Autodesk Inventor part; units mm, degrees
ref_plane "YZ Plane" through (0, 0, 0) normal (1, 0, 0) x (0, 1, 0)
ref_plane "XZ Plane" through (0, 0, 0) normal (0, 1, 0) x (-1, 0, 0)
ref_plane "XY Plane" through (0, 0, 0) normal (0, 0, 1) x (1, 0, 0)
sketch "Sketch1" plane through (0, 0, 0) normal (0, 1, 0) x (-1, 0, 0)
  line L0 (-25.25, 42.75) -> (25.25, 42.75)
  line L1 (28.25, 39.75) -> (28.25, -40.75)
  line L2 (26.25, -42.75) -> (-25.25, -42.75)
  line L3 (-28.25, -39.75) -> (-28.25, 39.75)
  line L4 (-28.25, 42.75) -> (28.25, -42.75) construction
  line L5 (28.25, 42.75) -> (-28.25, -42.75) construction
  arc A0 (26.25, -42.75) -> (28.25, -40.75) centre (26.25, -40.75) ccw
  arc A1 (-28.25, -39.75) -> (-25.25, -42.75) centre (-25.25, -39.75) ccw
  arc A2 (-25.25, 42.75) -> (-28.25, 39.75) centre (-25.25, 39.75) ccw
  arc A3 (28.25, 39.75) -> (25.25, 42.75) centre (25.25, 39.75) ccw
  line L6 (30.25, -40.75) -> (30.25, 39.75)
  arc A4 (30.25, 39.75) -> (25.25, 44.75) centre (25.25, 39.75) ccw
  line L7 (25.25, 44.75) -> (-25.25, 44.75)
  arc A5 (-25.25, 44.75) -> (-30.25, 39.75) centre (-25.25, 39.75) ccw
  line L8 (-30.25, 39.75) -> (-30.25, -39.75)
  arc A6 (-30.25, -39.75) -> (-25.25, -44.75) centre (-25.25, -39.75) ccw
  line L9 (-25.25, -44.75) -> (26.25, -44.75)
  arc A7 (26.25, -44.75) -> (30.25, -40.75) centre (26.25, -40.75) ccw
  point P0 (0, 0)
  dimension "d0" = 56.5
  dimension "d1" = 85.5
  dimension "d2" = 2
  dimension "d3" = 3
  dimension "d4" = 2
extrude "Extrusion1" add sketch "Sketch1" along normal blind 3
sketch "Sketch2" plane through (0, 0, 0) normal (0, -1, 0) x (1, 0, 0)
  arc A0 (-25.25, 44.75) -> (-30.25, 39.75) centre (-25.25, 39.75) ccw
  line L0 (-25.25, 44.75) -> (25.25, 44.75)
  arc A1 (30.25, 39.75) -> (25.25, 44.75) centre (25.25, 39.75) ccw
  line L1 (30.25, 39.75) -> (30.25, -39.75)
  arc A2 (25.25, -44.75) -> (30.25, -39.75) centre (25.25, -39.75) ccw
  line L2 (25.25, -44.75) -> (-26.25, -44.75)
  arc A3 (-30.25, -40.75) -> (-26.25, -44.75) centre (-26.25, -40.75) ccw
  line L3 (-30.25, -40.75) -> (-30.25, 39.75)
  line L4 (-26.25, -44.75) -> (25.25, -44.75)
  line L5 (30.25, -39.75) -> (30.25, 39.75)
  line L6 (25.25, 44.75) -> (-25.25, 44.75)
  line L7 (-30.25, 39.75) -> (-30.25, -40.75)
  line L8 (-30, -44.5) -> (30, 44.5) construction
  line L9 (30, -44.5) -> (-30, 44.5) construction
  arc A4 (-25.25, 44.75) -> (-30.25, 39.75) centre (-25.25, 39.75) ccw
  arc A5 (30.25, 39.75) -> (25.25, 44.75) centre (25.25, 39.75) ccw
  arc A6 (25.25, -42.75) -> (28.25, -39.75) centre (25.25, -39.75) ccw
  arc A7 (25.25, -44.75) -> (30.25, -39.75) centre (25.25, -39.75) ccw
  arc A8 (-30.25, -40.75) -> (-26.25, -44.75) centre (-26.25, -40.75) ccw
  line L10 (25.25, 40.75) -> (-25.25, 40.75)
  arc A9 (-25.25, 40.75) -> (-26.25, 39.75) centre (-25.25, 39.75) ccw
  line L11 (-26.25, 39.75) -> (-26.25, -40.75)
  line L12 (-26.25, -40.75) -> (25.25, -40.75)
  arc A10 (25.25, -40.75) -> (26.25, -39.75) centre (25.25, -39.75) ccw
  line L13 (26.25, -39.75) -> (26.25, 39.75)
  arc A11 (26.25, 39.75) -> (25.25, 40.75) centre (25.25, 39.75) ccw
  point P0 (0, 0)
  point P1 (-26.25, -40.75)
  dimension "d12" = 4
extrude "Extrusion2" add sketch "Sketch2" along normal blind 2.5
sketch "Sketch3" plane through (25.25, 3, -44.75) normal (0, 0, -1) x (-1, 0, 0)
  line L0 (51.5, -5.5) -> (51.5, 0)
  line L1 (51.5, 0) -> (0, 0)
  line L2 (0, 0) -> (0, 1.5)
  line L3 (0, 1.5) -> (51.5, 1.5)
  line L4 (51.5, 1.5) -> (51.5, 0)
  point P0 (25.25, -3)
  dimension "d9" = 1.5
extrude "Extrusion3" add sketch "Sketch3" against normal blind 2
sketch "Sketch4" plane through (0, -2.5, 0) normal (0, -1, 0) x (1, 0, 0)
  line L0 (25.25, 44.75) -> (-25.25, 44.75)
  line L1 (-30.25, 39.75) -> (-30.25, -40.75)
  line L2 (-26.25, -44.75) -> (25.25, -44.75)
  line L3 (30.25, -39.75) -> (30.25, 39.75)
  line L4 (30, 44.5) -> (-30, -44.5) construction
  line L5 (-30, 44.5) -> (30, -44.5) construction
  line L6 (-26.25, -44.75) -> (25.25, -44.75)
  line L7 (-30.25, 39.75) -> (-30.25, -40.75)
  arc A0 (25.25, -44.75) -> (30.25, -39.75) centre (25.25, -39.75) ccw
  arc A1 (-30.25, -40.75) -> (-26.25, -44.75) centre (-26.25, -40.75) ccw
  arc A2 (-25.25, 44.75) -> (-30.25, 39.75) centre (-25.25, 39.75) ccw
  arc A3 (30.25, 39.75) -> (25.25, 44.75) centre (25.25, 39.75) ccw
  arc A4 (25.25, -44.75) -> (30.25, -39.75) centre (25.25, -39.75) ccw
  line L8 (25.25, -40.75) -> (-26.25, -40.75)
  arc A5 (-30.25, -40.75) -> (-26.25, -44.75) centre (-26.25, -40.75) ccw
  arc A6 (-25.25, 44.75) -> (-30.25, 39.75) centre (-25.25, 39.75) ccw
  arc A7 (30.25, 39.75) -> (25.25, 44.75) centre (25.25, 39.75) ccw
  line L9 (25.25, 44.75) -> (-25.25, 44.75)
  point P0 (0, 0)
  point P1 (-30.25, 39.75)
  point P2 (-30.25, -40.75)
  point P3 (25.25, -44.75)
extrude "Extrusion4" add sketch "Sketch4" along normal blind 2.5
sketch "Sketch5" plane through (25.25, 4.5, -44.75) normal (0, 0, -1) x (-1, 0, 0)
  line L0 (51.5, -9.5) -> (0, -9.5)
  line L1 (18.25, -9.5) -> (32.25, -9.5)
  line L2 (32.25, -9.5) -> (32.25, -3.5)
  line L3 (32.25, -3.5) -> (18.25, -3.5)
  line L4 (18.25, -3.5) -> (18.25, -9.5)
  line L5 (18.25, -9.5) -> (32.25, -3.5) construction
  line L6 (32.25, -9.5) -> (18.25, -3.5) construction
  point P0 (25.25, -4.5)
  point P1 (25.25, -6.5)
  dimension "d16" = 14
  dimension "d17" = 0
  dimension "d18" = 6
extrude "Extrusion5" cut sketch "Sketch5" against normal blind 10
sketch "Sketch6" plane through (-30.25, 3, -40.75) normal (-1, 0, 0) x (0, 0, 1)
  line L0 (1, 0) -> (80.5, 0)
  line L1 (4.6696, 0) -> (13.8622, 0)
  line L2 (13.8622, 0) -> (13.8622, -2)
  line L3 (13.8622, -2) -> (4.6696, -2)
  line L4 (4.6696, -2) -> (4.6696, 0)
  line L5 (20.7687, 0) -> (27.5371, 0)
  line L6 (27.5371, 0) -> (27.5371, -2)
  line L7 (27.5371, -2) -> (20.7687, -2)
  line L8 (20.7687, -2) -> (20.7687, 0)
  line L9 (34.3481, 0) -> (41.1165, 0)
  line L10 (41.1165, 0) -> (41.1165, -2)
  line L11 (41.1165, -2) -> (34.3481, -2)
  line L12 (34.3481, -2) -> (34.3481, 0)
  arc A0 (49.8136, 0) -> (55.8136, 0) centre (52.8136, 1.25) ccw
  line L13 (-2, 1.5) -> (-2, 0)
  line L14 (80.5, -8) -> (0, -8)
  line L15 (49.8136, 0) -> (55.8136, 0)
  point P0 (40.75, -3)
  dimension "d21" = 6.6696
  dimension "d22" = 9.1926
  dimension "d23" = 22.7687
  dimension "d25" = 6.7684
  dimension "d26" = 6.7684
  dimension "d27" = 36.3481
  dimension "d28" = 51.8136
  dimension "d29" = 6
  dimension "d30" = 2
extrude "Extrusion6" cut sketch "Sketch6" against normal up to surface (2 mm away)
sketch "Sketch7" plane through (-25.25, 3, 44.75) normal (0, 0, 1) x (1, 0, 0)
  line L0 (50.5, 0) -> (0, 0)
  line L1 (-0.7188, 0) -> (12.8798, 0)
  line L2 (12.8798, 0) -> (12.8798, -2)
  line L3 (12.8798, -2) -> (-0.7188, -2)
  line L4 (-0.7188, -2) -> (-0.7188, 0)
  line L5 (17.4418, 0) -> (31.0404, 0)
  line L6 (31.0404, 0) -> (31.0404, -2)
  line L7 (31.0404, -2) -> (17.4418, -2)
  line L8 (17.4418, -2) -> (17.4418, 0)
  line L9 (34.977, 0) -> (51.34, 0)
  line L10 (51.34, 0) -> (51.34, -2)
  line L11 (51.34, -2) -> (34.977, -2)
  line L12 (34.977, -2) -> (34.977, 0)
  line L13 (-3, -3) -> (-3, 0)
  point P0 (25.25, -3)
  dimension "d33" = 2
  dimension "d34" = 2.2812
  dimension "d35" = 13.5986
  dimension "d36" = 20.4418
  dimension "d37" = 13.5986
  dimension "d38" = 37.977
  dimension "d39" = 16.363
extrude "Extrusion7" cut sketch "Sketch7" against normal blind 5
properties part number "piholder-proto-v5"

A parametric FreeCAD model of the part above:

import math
import FreeCAD as App
import Part
import Sketcher

V = App.Vector


def add_polygon(sketch, points):
    """Adds a closed chain of lines whose ends are joined by coincident constraints."""
    first, n = sketch.GeometryCount, len(points)
    for a, b in zip(points, points[1:] + points[:1]):
        sketch.addGeometry(Part.LineSegment(App.Vector(*a, 0), App.Vector(*b, 0)), False)
    for i in range(n):
        sketch.addConstraint(Sketcher.Constraint("Coincident", first + i, 2, first + (i + 1) % n, 1))

doc = App.newDocument("Part")
body = doc.addObject("PartDesign::Body", "Body")

# Sketch on XZ plane
sketch1 = body.newObject("Sketcher::SketchObject", "Sketch")
sketch1.AttachmentSupport = (doc.getObject("XZ_Plane"), [""])
sketch1.MapMode = "FlatFace"
sketch1.addGeometry(Part.ArcOfCircle(Part.Circle(V(-26.2, -40.8, 0), V(0, 0, 1), 4), math.radians(180), math.radians(270)), False)
sketch1.addGeometry(Part.LineSegment(V(-30.2, -40.8, 0), V(-30.2, 39.8, 0)), False)
sketch1.addGeometry(Part.ArcOfCircle(Part.Circle(V(-25.2, 39.8, 0), V(0, 0, 1), 5), math.radians(90), math.radians(180)), False)
sketch1.addGeometry(Part.LineSegment(V(-25.2, 44.8, 0), V(25.2, 44.8, 0)), False)
sketch1.addGeometry(Part.ArcOfCircle(Part.Circle(V(25.2, 39.8, 0), V(0, 0, 1), 5), math.radians(0), math.radians(90)), False)
sketch1.addGeometry(Part.LineSegment(V(30.2, 39.8, 0), V(30.2, -39.8, 0)), False)
sketch1.addGeometry(Part.ArcOfCircle(Part.Circle(V(25.2, -39.8, 0), V(0, 0, 1), 5), math.radians(-90), math.radians(0)), False)
sketch1.addGeometry(Part.LineSegment(V(25.2, -44.8, 0), V(-26.2, -44.8, 0)), False)
sketch1.addGeometry(Part.ArcOfCircle(Part.Circle(V(25.2, 39.8, 0), V(0, 0, 1), 3), math.radians(0), math.radians(90)), False)
sketch1.addGeometry(Part.LineSegment(V(25.2, 42.8, 0), V(-25.2, 42.8, 0)), False)
sketch1.addGeometry(Part.ArcOfCircle(Part.Circle(V(-25.2, 39.8, 0), V(0, 0, 1), 3), math.radians(90), math.radians(180)), False)
sketch1.addGeometry(Part.LineSegment(V(-28.2, 39.8, 0), V(-28.2, -40.8, 0)), False)
sketch1.addGeometry(Part.ArcOfCircle(Part.Circle(V(-26.2, -40.8, 0), V(0, 0, 1), 2), math.radians(180), math.radians(270)), False)
sketch1.addGeometry(Part.LineSegment(V(-26.2, -42.8, 0), V(25.2, -42.8, 0)), False)
sketch1.addGeometry(Part.ArcOfCircle(Part.Circle(V(25.2, -39.8, 0), V(0, 0, 1), 3), math.radians(-90), math.radians(0)), False)
sketch1.addGeometry(Part.LineSegment(V(28.2, -39.8, 0), V(28.2, 39.8, 0)), False)
sketch1.addConstraint(Sketcher.Constraint("Tangent", 0, 1, 1, 1))
sketch1.addConstraint(Sketcher.Constraint("Tangent", 1, 2, 2, 2))
sketch1.addConstraint(Sketcher.Constraint("Tangent", 2, 1, 3, 1))
sketch1.addConstraint(Sketcher.Constraint("Tangent", 3, 2, 4, 2))
sketch1.addConstraint(Sketcher.Constraint("Tangent", 4, 1, 5, 1))
sketch1.addConstraint(Sketcher.Constraint("Tangent", 5, 2, 6, 2))
sketch1.addConstraint(Sketcher.Constraint("Tangent", 6, 1, 7, 1))
sketch1.addConstraint(Sketcher.Constraint("Tangent", 7, 2, 0, 2))
sketch1.addConstraint(Sketcher.Constraint("Tangent", 8, 2, 9, 1))
sketch1.addConstraint(Sketcher.Constraint("Tangent", 9, 2, 10, 1))
sketch1.addConstraint(Sketcher.Constraint("Tangent", 10, 2, 11, 1))
sketch1.addConstraint(Sketcher.Constraint("Tangent", 11, 2, 12, 1))
sketch1.addConstraint(Sketcher.Constraint("Tangent", 12, 2, 13, 1))
sketch1.addConstraint(Sketcher.Constraint("Tangent", 13, 2, 14, 1))
sketch1.addConstraint(Sketcher.Constraint("Tangent", 14, 2, 15, 1))
sketch1.addConstraint(Sketcher.Constraint("Tangent", 15, 2, 8, 1))
sketch1.addConstraint(Sketcher.Constraint("Vertical", 1))
sketch1.addConstraint(Sketcher.Constraint("Horizontal", 3))
sketch1.addConstraint(Sketcher.Constraint("Vertical", 5))
sketch1.addConstraint(Sketcher.Constraint("Horizontal", 7))
sketch1.addConstraint(Sketcher.Constraint("Horizontal", 9))
sketch1.addConstraint(Sketcher.Constraint("Vertical", 11))
sketch1.addConstraint(Sketcher.Constraint("Horizontal", 13))
sketch1.addConstraint(Sketcher.Constraint("Vertical", 15))
sketch1.addConstraint(Sketcher.Constraint("Coincident", 8, 3, 4, 3))
sketch1.addConstraint(Sketcher.Constraint("Coincident", 10, 3, 2, 3))
sketch1.addConstraint(Sketcher.Constraint("Coincident", 12, 3, 0, 3))
sketch1.addConstraint(Sketcher.Constraint("Equal", 2, 4))
sketch1.addConstraint(Sketcher.Constraint("Equal", 4, 6))
sketch1.addConstraint(Sketcher.Constraint("Equal", 10, 14))
sketch1.addConstraint(Sketcher.Constraint("Symmetric", 2, 3, 6, 3, -1, 1))
sketch1.addConstraint(Sketcher.Constraint("Radius", 8, 3.0))
sketch1.addConstraint(Sketcher.Constraint("Radius", 12, 2.0))
sketch1.addConstraint(Sketcher.Constraint("Radius", 0, 4.0))
sketch1.addConstraint(Sketcher.Constraint("DistanceX", 0, 3, 5, 2, 56.5))
sketch1.addConstraint(Sketcher.Constraint("DistanceY", 1, 1, 1, 2, 80.5))
pad1 = body.newObject("PartDesign::Pad", "Pad")
pad1.Profile = sketch1
pad1.Length = 3
pad1.Reversed = True

# Sketch on XZ plane
sketch2 = body.newObject("Sketcher::SketchObject", "Sketch001")
sketch2.AttachmentSupport = (doc.getObject("XZ_Plane"), [""])
sketch2.MapMode = "FlatFace"
sketch2.addGeometry(Part.LineSegment(V(25.2, 44.8, 0), V(-25.2, 44.8, 0)), False)
sketch2.addGeometry(Part.ArcOfCircle(Part.Circle(V(-25.2, 39.8, 0), V(0, 0, 1), 5), math.radians(90), math.radians(180)), False)
sketch2.addGeometry(Part.LineSegment(V(-30.2, 39.8, 0), V(-30.2, -40.8, 0)), False)
sketch2.addGeometry(Part.ArcOfCircle(Part.Circle(V(-26.2, -40.8, 0), V(0, 0, 1), 4), math.radians(180), math.radians(270)), False)
sketch2.addGeometry(Part.LineSegment(V(-26.2, -44.8, 0), V(25.2, -44.8, 0)), False)
sketch2.addGeometry(Part.ArcOfCircle(Part.Circle(V(25.2, -39.8, 0), V(0, 0, 1), 5), math.radians(-90), math.radians(0)), False)
sketch2.addGeometry(Part.LineSegment(V(30.2, -39.8, 0), V(30.2, 39.8, 0)), False)
sketch2.addGeometry(Part.ArcOfCircle(Part.Circle(V(25.2, 39.8, 0), V(0, 0, 1), 5), math.radians(0), math.radians(90)), False)
sketch2.addGeometry(Part.LineSegment(V(-25.2, 40.8, 0), V(25.2, 40.8, 0)), False)
sketch2.addGeometry(Part.ArcOfCircle(Part.Circle(V(25.2, 39.8, 0), V(0, 0, 1), 1), math.radians(0), math.radians(90)), False)
sketch2.addGeometry(Part.LineSegment(V(26.2, 39.8, 0), V(26.2, -39.8, 0)), False)
sketch2.addGeometry(Part.ArcOfCircle(Part.Circle(V(25.2, -39.8, 0), V(0, 0, 1), 1), math.radians(-90), math.radians(0)), False)
sketch2.addGeometry(Part.LineSegment(V(25.2, -40.8, 0), V(-26.2, -40.8, 0)), False)
sketch2.addGeometry(Part.LineSegment(V(-26.2, -40.8, 0), V(-26.2, 39.8, 0)), False)
sketch2.addGeometry(Part.ArcOfCircle(Part.Circle(V(-25.2, 39.8, 0), V(0, 0, 1), 1), math.radians(90), math.radians(180)), False)
sketch2.addConstraint(Sketcher.Constraint("Tangent", 0, 2, 1, 1))
sketch2.addConstraint(Sketcher.Constraint("Tangent", 1, 2, 2, 1))
sketch2.addConstraint(Sketcher.Constraint("Tangent", 2, 2, 3, 1))
sketch2.addConstraint(Sketcher.Constraint("Tangent", 3, 2, 4, 1))
sketch2.addConstraint(Sketcher.Constraint("Tangent", 4, 2, 5, 1))
sketch2.addConstraint(Sketcher.Constraint("Tangent", 5, 2, 6, 1))
sketch2.addConstraint(Sketcher.Constraint("Tangent", 6, 2, 7, 1))
sketch2.addConstraint(Sketcher.Constraint("Tangent", 7, 2, 0, 1))
sketch2.addConstraint(Sketcher.Constraint("Tangent", 8, 2, 9, 2))
sketch2.addConstraint(Sketcher.Constraint("Tangent", 9, 1, 10, 1))
sketch2.addConstraint(Sketcher.Constraint("Tangent", 10, 2, 11, 2))
sketch2.addConstraint(Sketcher.Constraint("Tangent", 11, 1, 12, 1))
sketch2.addConstraint(Sketcher.Constraint("Coincident", 12, 2, 13, 1))
sketch2.addConstraint(Sketcher.Constraint("Tangent", 13, 2, 14, 2))
sketch2.addConstraint(Sketcher.Constraint("Tangent", 14, 1, 8, 1))
sketch2.addConstraint(Sketcher.Constraint("Horizontal", 0))
sketch2.addConstraint(Sketcher.Constraint("Vertical", 2))
sketch2.addConstraint(Sketcher.Constraint("Horizontal", 4))
sketch2.addConstraint(Sketcher.Constraint("Vertical", 6))
sketch2.addConstraint(Sketcher.Constraint("Horizontal", 8))
sketch2.addConstraint(Sketcher.Constraint("Vertical", 10))
sketch2.addConstraint(Sketcher.Constraint("Horizontal", 12))
sketch2.addConstraint(Sketcher.Constraint("Vertical", 13))
sketch2.addConstraint(Sketcher.Constraint("Coincident", 9, 3, 7, 3))
sketch2.addConstraint(Sketcher.Constraint("Coincident", 11, 3, 5, 3))
sketch2.addConstraint(Sketcher.Constraint("Coincident", 14, 3, 1, 3))
sketch2.addConstraint(Sketcher.Constraint("Equal", 1, 5))
sketch2.addConstraint(Sketcher.Constraint("Equal", 5, 7))
sketch2.addConstraint(Sketcher.Constraint("Symmetric", 1, 3, 5, 3, -1, 1))
sketch2.addConstraint(Sketcher.Constraint("Horizontal", 2, 2, 11, 1))
sketch2.addConstraint(Sketcher.Constraint("Radius", 3, 4.0))
sketch2.addConstraint(Sketcher.Constraint("Radius", 1, 5.0))
sketch2.addConstraint(Sketcher.Constraint("DistanceX", 0, 2, 0, 1, 50.5))
sketch2.addConstraint(Sketcher.Constraint("DistanceY", 2, 2, 2, 1, 80.5))
pad2 = body.newObject("PartDesign::Pad", "Pad001")
pad2.Profile = sketch2
pad2.Length = 2.5

# Sketch on XY plane
sketch3 = body.newObject("Sketcher::SketchObject", "Sketch002")
sketch3.AttachmentSupport = (doc.getObject("XY_Plane"), [""])
sketch3.MapMode = "FlatFace"
sketch3.AttachmentOffset = App.Placement(V(0, 0, -44.75), App.Rotation())
add_polygon(sketch3, [(25.2, 3), (-26.2, 3), (-26.2, 4.5), (25.2, 4.5)])  # lines 0-3
sketch3.addConstraint(Sketcher.Constraint("Horizontal", 0))
sketch3.addConstraint(Sketcher.Constraint("Vertical", 1))
sketch3.addConstraint(Sketcher.Constraint("Horizontal", 2))
sketch3.addConstraint(Sketcher.Constraint("Vertical", 3))
sketch3.addConstraint(Sketcher.Constraint("DistanceY", 1, 1, 1, 2, 1.5))
sketch3.addConstraint(Sketcher.Constraint("DistanceX", 0, 2, 0, 1, 51.5))
sketch3.addConstraint(Sketcher.Constraint("DistanceY", -1, 1, 0, 2, 3.0))
sketch3.addConstraint(Sketcher.Constraint("DistanceX", 0, 2, -1, 1, 26.25))
pad3 = body.newObject("PartDesign::Pad", "Pad002")
pad3.Profile = sketch3
pad3.Length = 2

# Sketch on XZ plane
sketch4 = body.newObject("Sketcher::SketchObject", "Sketch003")
sketch4.AttachmentSupport = (doc.getObject("XZ_Plane"), [""])
sketch4.MapMode = "FlatFace"
sketch4.AttachmentOffset = App.Placement(V(0, 0, 2.5), App.Rotation())
sketch4.addGeometry(Part.ArcOfCircle(Part.Circle(V(25.2, 39.8, 0), V(0, 0, 1), 5), math.radians(0), math.radians(90)), False)
sketch4.addGeometry(Part.LineSegment(V(25.2, 44.8, 0), V(-25.2, 44.8, 0)), False)
sketch4.addGeometry(Part.ArcOfCircle(Part.Circle(V(-25.2, 39.8, 0), V(0, 0, 1), 5), math.radians(90), math.radians(180)), False)
sketch4.addGeometry(Part.LineSegment(V(-30.2, 39.8, 0), V(-30.2, -40.8, 0)), False)
sketch4.addGeometry(Part.ArcOfCircle(Part.Circle(V(-26.2, -40.8, 0), V(0, 0, 1), 4), math.radians(180), math.radians(270)), False)
sketch4.addGeometry(Part.LineSegment(V(-26.2, -44.8, 0), V(25.2, -44.8, 0)), False)
sketch4.addGeometry(Part.ArcOfCircle(Part.Circle(V(25.2, -39.8, 0), V(0, 0, 1), 5), math.radians(-90), math.radians(0)), False)
sketch4.addGeometry(Part.LineSegment(V(30.2, -39.8, 0), V(30.2, 39.8, 0)), False)
sketch4.addConstraint(Sketcher.Constraint("Tangent", 0, 2, 1, 1))
sketch4.addConstraint(Sketcher.Constraint("Tangent", 1, 2, 2, 1))
sketch4.addConstraint(Sketcher.Constraint("Tangent", 2, 2, 3, 1))
sketch4.addConstraint(Sketcher.Constraint("Tangent", 3, 2, 4, 1))
sketch4.addConstraint(Sketcher.Constraint("Tangent", 4, 2, 5, 1))
sketch4.addConstraint(Sketcher.Constraint("Tangent", 5, 2, 6, 1))
sketch4.addConstraint(Sketcher.Constraint("Tangent", 6, 2, 7, 1))
sketch4.addConstraint(Sketcher.Constraint("Tangent", 7, 2, 0, 1))
sketch4.addConstraint(Sketcher.Constraint("Horizontal", 1))
sketch4.addConstraint(Sketcher.Constraint("Vertical", 3))
sketch4.addConstraint(Sketcher.Constraint("Horizontal", 5))
sketch4.addConstraint(Sketcher.Constraint("Vertical", 7))
sketch4.addConstraint(Sketcher.Constraint("Equal", 0, 2))
sketch4.addConstraint(Sketcher.Constraint("Equal", 2, 6))
sketch4.addConstraint(Sketcher.Constraint("Symmetric", 2, 3, 6, 3, -1, 1))
sketch4.addConstraint(Sketcher.Constraint("Radius", 0, 5.0))
sketch4.addConstraint(Sketcher.Constraint("Radius", 4, 4.0))
sketch4.addConstraint(Sketcher.Constraint("DistanceX", 1, 2, 1, 1, 50.5))
sketch4.addConstraint(Sketcher.Constraint("DistanceY", 3, 2, 3, 1, 80.5))
pad4 = body.newObject("PartDesign::Pad", "Pad003")
pad4.Profile = sketch4
pad4.Length = 2.5

# Sketch on XY plane
sketch5 = body.newObject("Sketcher::SketchObject", "Sketch004")
sketch5.AttachmentSupport = (doc.getObject("XY_Plane"), [""])
sketch5.MapMode = "FlatFace"
sketch5.AttachmentOffset = App.Placement(V(0, 0, -44.75), App.Rotation())
add_polygon(sketch5, [(7, -5), (-7, -5), (-7, 1), (7, 1)])  # lines 0-3
sketch5.addConstraint(Sketcher.Constraint("Horizontal", 0))
sketch5.addConstraint(Sketcher.Constraint("Vertical", 1))
sketch5.addConstraint(Sketcher.Constraint("Horizontal", 2))
sketch5.addConstraint(Sketcher.Constraint("Vertical", 3))
sketch5.addConstraint(Sketcher.Constraint("DistanceX", 0, 2, 0, 1, 14.0))
sketch5.addConstraint(Sketcher.Constraint("DistanceY", 1, 1, 1, 2, 6.0))
sketch5.addConstraint(Sketcher.Constraint("DistanceX", 0, 2, -1, 1, 7.0))
sketch5.addConstraint(Sketcher.Constraint("DistanceY", 0, 2, -1, 1, 5.0))
pocket1 = body.newObject("PartDesign::Pocket", "Pocket")
pocket1.Profile = sketch5
pocket1.Length = 10
pocket1.Reversed = True

# Sketch on YZ plane
sketch6 = body.newObject("Sketcher::SketchObject", "Sketch005")
sketch6.AttachmentSupport = (doc.getObject("YZ_Plane"), [""])
sketch6.MapMode = "FlatFace"
sketch6.AttachmentOffset = App.Placement(V(0, 0, -30.25), App.Rotation())
sketch6.addGeometry(Part.LineSegment(V(3, 15.1, 0), V(3, 9.1, 0)), False)  # 0
sketch6.addGeometry(Part.ArcOfCircle(Part.Circle(V(4.2, 12.1, 0), V(0, 0, 1), 3.2), math.radians(113), math.radians(247)), False)  # 1
add_polygon(sketch6, [(3, 0.4), (3, -6.4), (1, -6.4), (1, 0.4)])  # lines 2-5
add_polygon(sketch6, [(3, -13.2), (3, -20), (1, -20), (1, -13.2)])  # lines 6-9
add_polygon(sketch6, [(3, -26.9), (3, -36.1), (1, -36.1), (1, -26.9)])  # lines 10-13
sketch6.addConstraint(Sketcher.Constraint("Coincident", 0, 1, 1, 1))
sketch6.addConstraint(Sketcher.Constraint("Coincident", 1, 2, 0, 2))
sketch6.addConstraint(Sketcher.Constraint("Vertical", 0))
sketch6.addConstraint(Sketcher.Constraint("Vertical", 2))
sketch6.addConstraint(Sketcher.Constraint("Horizontal", 3))
sketch6.addConstraint(Sketcher.Constraint("Vertical", 4))
sketch6.addConstraint(Sketcher.Constraint("Horizontal", 5))
sketch6.addConstraint(Sketcher.Constraint("Vertical", 6))
sketch6.addConstraint(Sketcher.Constraint("Horizontal", 7))
sketch6.addConstraint(Sketcher.Constraint("Vertical", 8))
sketch6.addConstraint(Sketcher.Constraint("Horizontal", 9))
sketch6.addConstraint(Sketcher.Constraint("Vertical", 10))
sketch6.addConstraint(Sketcher.Constraint("Horizontal", 11))
sketch6.addConstraint(Sketcher.Constraint("Vertical", 12))
sketch6.addConstraint(Sketcher.Constraint("Horizontal", 13))
sketch6.addConstraint(Sketcher.Constraint("Vertical", 1, 2, 2, 2))
sketch6.addConstraint(Sketcher.Constraint("Vertical", 5, 2, 6, 2))
sketch6.addConstraint(Sketcher.Constraint("Vertical", 4, 2, 7, 2))
sketch6.addConstraint(Sketcher.Constraint("Vertical", 9, 2, 10, 2))
sketch6.addConstraint(Sketcher.Constraint("Vertical", 8, 2, 11, 2))
sketch6.addConstraint(Sketcher.Constraint("Equal", 4, 6))
sketch6.addConstraint(Sketcher.Constraint("DistanceX", 3, 2, 3, 1, 2.0))
sketch6.addConstraint(Sketcher.Constraint("DistanceY", 0, 2, 0, 1, 6.0))
sketch6.addConstraint(Sketcher.Constraint("Radius", 1, 3.25))
sketch6.addConstraint(Sketcher.Constraint("DistanceY", 2, 2, 2, 1, 6.7684))
sketch6.addConstraint(Sketcher.Constraint("DistanceY", 10, 2, 10, 1, 9.1926))
sketch6.addConstraint(Sketcher.Constraint("DistanceX", -1, 1, 0, 1, 3.0))
sketch6.addConstraint(Sketcher.Constraint("DistanceY", 2, 2, -1, 1, 6.402))
sketch6.addConstraint(Sketcher.Constraint("DistanceY", 8, 2, -1, 1, 13.213))
sketch6.addConstraint(Sketcher.Constraint("DistanceY", 4, 2, 1, 2, 8.697))
sketch6.addConstraint(Sketcher.Constraint("DistanceY", 10, 2, 6, 2, 16.099))
pocket2 = body.newObject("PartDesign::Pocket", "Pocket001")
pocket2.Profile = sketch6
pocket2.Length = 2
pocket2.Reversed = True

# Sketch on XY plane
sketch7 = body.newObject("Sketcher::SketchObject", "Sketch006")
sketch7.AttachmentSupport = (doc.getObject("XY_Plane"), [""])
sketch7.MapMode = "FlatFace"
sketch7.AttachmentOffset = App.Placement(V(0, 0, 44.75), App.Rotation())
add_polygon(sketch7, [(26.1, 3), (9.7, 3), (9.7, 1), (26.1, 1)])  # lines 0-3
add_polygon(sketch7, [(-12.4, 1), (-12.4, 3), (-26, 3), (-26, 1)])  # lines 4-7
add_polygon(sketch7, [(5.8, 1), (5.8, 3), (-7.8, 3), (-7.8, 1)])  # lines 8-11
sketch7.addConstraint(Sketcher.Constraint("Horizontal", 0))
sketch7.addConstraint(Sketcher.Constraint("Vertical", 1))
sketch7.addConstraint(Sketcher.Constraint("Horizontal", 2))
sketch7.addConstraint(Sketcher.Constraint("Vertical", 3))
sketch7.addConstraint(Sketcher.Constraint("Vertical", 4))
sketch7.addConstraint(Sketcher.Constraint("Horizontal", 5))
sketch7.addConstraint(Sketcher.Constraint("Vertical", 6))
sketch7.addConstraint(Sketcher.Constraint("Horizontal", 7))
sketch7.addConstraint(Sketcher.Constraint("Vertical", 8))
sketch7.addConstraint(Sketcher.Constraint("Horizontal", 9))
sketch7.addConstraint(Sketcher.Constraint("Vertical", 10))
sketch7.addConstraint(Sketcher.Constraint("Horizontal", 11))
sketch7.addConstraint(Sketcher.Constraint("Horizontal", 3, 2, 4, 2))
sketch7.addConstraint(Sketcher.Constraint("Horizontal", 2, 2, 6, 2))
sketch7.addConstraint(Sketcher.Constraint("Horizontal", 5, 2, 8, 2))
sketch7.addConstraint(Sketcher.Constraint("Horizontal", 7, 2, 10, 2))
sketch7.addConstraint(Sketcher.Constraint("Equal", 7, 9))
sketch7.addConstraint(Sketcher.Constraint("DistanceY", 1, 2, 1, 1, 2.0))
sketch7.addConstraint(Sketcher.Constraint("DistanceX", 0, 2, 0, 1, 16.363))
sketch7.addConstraint(Sketcher.Constraint("DistanceX", 5, 2, 5, 1, 13.5986))
sketch7.addConstraint(Sketcher.Constraint("DistanceY", -1, 1, 0, 2, 3.0))
sketch7.addConstraint(Sketcher.Constraint("DistanceX", -1, 1, 2, 2, 26.09))
sketch7.addConstraint(Sketcher.Constraint("DistanceX", 4, 2, 9, 2, 4.562))
sketch7.addConstraint(Sketcher.Constraint("DistanceX", 4, 2, -1, 1, 12.3702))
pocket3 = body.newObject("PartDesign::Pocket", "Pocket002")
pocket3.Profile = sketch7
pocket3.Length = 5

doc.recompute()
